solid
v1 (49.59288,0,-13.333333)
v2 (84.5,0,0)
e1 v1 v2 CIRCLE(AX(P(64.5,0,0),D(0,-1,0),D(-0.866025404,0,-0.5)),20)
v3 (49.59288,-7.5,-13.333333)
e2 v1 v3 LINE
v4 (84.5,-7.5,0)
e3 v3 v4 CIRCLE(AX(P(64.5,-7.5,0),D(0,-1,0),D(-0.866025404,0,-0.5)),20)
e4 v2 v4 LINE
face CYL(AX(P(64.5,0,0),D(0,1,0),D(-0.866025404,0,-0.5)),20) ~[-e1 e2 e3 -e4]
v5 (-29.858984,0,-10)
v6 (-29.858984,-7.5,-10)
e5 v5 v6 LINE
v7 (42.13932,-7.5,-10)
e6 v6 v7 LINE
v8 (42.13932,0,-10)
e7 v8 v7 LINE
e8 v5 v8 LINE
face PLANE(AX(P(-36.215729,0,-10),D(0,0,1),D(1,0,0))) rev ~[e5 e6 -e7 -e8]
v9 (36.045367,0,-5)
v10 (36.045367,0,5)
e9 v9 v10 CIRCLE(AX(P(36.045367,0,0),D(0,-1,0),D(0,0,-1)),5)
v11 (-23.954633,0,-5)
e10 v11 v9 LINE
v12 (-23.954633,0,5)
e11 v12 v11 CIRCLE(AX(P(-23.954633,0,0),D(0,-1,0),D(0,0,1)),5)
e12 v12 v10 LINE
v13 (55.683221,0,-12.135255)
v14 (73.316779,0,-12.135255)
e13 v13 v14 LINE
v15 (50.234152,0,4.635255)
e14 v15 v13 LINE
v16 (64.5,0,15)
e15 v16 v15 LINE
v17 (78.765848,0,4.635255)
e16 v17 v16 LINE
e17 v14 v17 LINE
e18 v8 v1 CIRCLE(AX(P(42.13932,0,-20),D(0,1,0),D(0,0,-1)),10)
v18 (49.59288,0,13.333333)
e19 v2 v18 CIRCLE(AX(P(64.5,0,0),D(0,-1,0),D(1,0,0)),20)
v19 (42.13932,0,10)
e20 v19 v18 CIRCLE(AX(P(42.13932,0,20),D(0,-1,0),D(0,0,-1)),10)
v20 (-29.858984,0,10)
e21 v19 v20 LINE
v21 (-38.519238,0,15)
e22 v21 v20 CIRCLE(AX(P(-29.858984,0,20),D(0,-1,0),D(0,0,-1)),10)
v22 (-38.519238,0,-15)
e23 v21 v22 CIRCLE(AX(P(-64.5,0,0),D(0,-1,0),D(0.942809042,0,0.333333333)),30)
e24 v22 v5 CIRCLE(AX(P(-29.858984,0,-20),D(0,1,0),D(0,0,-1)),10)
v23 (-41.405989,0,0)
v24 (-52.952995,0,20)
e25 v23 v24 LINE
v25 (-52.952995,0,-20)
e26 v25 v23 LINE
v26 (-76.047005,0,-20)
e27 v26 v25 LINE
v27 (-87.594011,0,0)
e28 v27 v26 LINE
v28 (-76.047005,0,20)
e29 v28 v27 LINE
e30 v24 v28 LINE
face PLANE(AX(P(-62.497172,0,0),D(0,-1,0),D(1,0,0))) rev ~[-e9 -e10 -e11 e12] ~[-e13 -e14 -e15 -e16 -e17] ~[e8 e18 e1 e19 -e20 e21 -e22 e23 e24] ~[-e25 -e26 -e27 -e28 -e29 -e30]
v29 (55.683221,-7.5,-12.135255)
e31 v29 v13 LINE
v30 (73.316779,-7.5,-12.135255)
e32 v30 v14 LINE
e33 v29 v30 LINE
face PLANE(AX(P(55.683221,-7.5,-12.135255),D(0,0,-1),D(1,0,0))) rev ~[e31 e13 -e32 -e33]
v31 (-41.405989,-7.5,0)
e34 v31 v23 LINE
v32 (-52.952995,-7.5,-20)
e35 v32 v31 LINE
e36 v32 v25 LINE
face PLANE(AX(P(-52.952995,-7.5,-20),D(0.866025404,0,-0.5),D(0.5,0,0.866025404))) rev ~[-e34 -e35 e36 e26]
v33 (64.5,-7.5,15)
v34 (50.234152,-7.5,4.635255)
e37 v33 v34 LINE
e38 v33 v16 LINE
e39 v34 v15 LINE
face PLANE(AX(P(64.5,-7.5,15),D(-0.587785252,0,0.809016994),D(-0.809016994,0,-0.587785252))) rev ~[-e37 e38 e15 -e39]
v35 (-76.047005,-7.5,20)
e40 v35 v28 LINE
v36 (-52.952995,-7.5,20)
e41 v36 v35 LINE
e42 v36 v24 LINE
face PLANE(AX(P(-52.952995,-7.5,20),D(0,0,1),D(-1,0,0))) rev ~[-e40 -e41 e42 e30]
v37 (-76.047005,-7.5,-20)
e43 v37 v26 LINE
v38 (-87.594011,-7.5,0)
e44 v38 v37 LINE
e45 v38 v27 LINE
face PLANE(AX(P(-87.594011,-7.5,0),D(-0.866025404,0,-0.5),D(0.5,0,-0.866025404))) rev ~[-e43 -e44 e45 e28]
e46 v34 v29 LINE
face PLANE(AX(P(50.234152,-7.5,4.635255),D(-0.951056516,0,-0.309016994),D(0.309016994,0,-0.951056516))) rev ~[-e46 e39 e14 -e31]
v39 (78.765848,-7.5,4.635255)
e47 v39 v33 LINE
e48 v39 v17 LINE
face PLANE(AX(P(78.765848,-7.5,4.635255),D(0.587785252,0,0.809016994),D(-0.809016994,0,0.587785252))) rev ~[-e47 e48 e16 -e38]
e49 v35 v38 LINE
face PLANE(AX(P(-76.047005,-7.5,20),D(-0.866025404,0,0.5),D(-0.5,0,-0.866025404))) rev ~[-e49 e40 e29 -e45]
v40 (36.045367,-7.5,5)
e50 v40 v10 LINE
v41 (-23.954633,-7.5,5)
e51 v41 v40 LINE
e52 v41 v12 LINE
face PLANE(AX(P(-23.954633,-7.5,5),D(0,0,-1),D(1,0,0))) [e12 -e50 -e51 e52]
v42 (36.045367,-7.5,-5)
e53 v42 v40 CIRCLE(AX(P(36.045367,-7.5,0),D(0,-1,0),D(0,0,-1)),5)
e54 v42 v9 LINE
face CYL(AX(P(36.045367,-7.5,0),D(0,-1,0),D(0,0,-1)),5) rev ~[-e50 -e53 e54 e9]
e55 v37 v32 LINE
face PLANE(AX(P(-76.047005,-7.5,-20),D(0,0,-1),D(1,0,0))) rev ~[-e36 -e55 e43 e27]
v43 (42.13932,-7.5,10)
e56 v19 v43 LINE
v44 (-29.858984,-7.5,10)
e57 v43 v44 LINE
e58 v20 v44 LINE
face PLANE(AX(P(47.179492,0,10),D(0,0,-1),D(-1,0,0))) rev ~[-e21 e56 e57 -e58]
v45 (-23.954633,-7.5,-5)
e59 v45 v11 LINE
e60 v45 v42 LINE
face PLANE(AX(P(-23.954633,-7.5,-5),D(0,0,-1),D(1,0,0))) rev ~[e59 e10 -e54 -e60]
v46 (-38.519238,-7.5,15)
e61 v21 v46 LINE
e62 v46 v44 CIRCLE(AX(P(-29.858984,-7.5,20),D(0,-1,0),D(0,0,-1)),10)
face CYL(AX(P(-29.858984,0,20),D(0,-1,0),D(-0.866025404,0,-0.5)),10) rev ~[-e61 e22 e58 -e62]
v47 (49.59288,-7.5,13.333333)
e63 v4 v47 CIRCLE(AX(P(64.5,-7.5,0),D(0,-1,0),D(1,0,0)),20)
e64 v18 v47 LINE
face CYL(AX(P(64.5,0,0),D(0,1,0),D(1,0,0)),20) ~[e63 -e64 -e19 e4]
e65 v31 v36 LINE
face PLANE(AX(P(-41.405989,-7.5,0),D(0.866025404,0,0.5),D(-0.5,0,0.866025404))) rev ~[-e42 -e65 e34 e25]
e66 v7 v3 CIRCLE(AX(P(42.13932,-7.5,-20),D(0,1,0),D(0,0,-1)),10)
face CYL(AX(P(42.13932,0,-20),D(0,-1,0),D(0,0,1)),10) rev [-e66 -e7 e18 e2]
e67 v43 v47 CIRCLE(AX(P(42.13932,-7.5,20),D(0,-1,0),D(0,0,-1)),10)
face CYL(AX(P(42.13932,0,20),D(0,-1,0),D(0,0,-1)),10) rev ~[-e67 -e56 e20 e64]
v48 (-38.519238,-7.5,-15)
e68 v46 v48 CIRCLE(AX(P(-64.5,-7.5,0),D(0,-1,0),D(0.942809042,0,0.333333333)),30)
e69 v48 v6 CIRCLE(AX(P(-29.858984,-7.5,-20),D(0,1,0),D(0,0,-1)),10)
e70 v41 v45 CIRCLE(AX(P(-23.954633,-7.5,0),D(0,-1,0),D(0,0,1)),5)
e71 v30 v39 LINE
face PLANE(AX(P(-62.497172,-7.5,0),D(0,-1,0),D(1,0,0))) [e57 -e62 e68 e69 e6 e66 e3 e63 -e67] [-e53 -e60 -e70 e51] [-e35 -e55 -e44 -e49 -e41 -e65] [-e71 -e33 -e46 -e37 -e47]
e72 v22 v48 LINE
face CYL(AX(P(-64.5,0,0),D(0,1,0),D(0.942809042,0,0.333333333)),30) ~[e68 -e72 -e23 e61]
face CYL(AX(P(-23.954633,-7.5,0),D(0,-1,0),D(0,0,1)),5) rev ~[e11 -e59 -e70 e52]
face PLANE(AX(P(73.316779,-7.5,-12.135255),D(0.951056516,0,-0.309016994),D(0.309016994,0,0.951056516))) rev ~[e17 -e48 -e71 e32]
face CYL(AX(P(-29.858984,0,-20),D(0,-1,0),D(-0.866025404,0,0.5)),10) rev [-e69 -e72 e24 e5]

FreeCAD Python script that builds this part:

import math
import FreeCAD as App
import Part
import Sketcher
Q = App.Units.Quantity


def edges_at(feature, points):
    """Names of the edges that pass closest to the given points."""
    edges = feature.Shape.Edges
    near = lambda p: min(range(len(edges)), key=lambda i: edges[i].distToShape(Part.Vertex(*p))[0])
    return sorted({f"Edge{near(p) + 1}" for p in points})

doc = App.newDocument("Part")
params = doc.addObject("Spreadsheet::Sheet", "Params")
for row, (alias, value) in enumerate([
    ("sketch1_radius", "30 mm"),
    ("sketch1_radius2", "20 mm"),
    ("pad1_length", "7.5 mm"),
    ("pocket1_length", "25 mm"),
    ("pocket2_length", "25 mm"),
    ("sketch4_radius", "5 mm"),
    ("sketch4_width", "60 mm"),
    ("pocket3_length", "25 mm"),
    ("fillet_radius", "10 mm"),
], start=1):
    params.set(f"A{row}", alias)
    params.set(f"B{row}", "=" + value)
    params.setAlias(f"B{row}", alias)

body = doc.addObject("PartDesign::Body", "Body")

# Sketch on XZ plane
sketch1 = body.newObject("Sketcher::SketchObject", "Sketch")
sketch1.AttachmentSupport = (doc.getObject("XZ_Plane"), [""])
sketch1.MapMode = "FlatFace"
sketch1.addGeometry([
    Part.ArcOfCircle(Part.Circle(App.Vector(-64.5, 0, 0), App.Vector(0, 0, 1), 30), math.radians(19.471221), math.radians(340.528779)),  # 0
    Part.LineSegment(App.Vector(-36.215729, -10, 0), App.Vector(47.179492, -10, 0)),  # 1
    Part.ArcOfCircle(Part.Circle(App.Vector(64.5, 0, 0), App.Vector(0, 0, 1), 20), math.radians(-150), math.radians(0)),  # 2
    Part.ArcOfCircle(Part.Circle(App.Vector(64.5, 0, 0), App.Vector(0, 0, 1), 20), math.radians(0), math.radians(150)),  # 3
    Part.LineSegment(App.Vector(47.179492, 10, 0), App.Vector(-36.215729, 10, 0)),  # 4
], False)
sketch1.addConstraint([
    Sketcher.Constraint("Coincident", 0, 2, 1, 1),
    Sketcher.Constraint("Coincident", 1, 2, 2, 1),
    Sketcher.Constraint("Tangent", 2, 2, 3, 1),
    Sketcher.Constraint("Coincident", 3, 2, 4, 1),
    Sketcher.Constraint("Coincident", 4, 2, 0, 1),
    Sketcher.Constraint("Horizontal", 1),
    Sketcher.Constraint("Horizontal", 4),
    Sketcher.Constraint("Equal", 2, 3),
    Sketcher.Constraint("Symmetric", 0, 3, 2, 3, -1, 1),
    Sketcher.Constraint("Symmetric", 1, 2, 3, 2, -1),
    Sketcher.Constraint("PointOnObject", 2, 2, -1),
    Sketcher.Constraint("Radius", 0, 30.0),
    Sketcher.Constraint("Radius", 2, 20.0),
    Sketcher.Constraint("DistanceY", 0, 2, -1, 1, 10.0),
    Sketcher.Constraint("DistanceX", 0, 3, 2, 3, 129.0),
])
sketch1.setExpression("Constraints[11]", "Params.sketch1_radius")
sketch1.setExpression("Constraints[12]", "Params.sketch1_radius2")
pad1 = body.newObject("PartDesign::Pad", "Pad")
pad1.Profile = sketch1
pad1.setExpression("Length", "Params.pad1_length")

# Sketch on XZ plane
sketch2 = body.newObject("Sketcher::SketchObject", "Sketch001")
sketch2.AttachmentSupport = (doc.getObject("XZ_Plane"), [""])
sketch2.MapMode = "FlatFace"
sketch2.AttachmentOffset = App.Placement(App.Vector(0, 0, 7.5), App.Rotation())
sketch2.addGeometry([
    Part.LineSegment(App.Vector(-52.952995, 20, 0), App.Vector(-76.047005, 20, 0)),  # 0
    Part.LineSegment(App.Vector(-76.047005, 20, 0), App.Vector(-87.594011, 0, 0)),  # 1
    Part.LineSegment(App.Vector(-87.594011, 0, 0), App.Vector(-76.047005, -20, 0)),  # 2
    Part.LineSegment(App.Vector(-76.047005, -20, 0), App.Vector(-52.952995, -20, 0)),  # 3
    Part.LineSegment(App.Vector(-52.952995, -20, 0), App.Vector(-41.405989, 0, 0)),  # 4
    Part.LineSegment(App.Vector(-41.405989, 0, 0), App.Vector(-52.952995, 20, 0)),  # 5
], False)
sketch2.addConstraint([
    Sketcher.Constraint("Coincident", 0, 2, 1, 1),
    Sketcher.Constraint("Coincident", 1, 2, 2, 1),
    Sketcher.Constraint("Coincident", 2, 2, 3, 1),
    Sketcher.Constraint("Coincident", 3, 2, 4, 1),
    Sketcher.Constraint("Coincident", 4, 2, 5, 1),
    Sketcher.Constraint("Coincident", 5, 2, 0, 1),
    Sketcher.Constraint("Horizontal", 0),
    Sketcher.Constraint("Horizontal", 3),
    Sketcher.Constraint("Symmetric", 0, 2, 2, 2, -1),
    Sketcher.Constraint("PointOnObject", 1, 2, -1),
    Sketcher.Constraint("PointOnObject", 4, 2, -1),
    Sketcher.Constraint("Parallel", 1, 4),
    Sketcher.Constraint("Parallel", 2, 5),
    Sketcher.Constraint("Angle", 1, Q("-120 deg")),
    Sketcher.Constraint("DistanceY", -1, 1, 0, 2, 20.0),
    Sketcher.Constraint("DistanceX", 0, 2, 0, 1, 23.094011),
    Sketcher.Constraint("DistanceX", 1, 2, -1, 1, 87.594011),
])
pocket1 = body.newObject("PartDesign::Pocket", "Pocket")
pocket1.Profile = sketch2
pocket1.setExpression("Length", "Params.pocket1_length")

# Sketch on XZ plane
sketch3 = body.newObject("Sketcher::SketchObject", "Sketch002")
sketch3.AttachmentSupport = (doc.getObject("XZ_Plane"), [""])
sketch3.MapMode = "FlatFace"
sketch3.AttachmentOffset = App.Placement(App.Vector(0, 0, 7.5), App.Rotation())
sketch3.addGeometry([
    Part.LineSegment(App.Vector(73.316779, -12.135255, 0), App.Vector(78.765848, 4.635255, 0)),  # 0
    Part.LineSegment(App.Vector(78.765848, 4.635255, 0), App.Vector(64.5, 15, 0)),  # 1
    Part.LineSegment(App.Vector(64.5, 15, 0), App.Vector(50.234152, 4.635255, 0)),  # 2
    Part.LineSegment(App.Vector(50.234152, 4.635255, 0), App.Vector(55.683221, -12.135255, 0)),  # 3
    Part.LineSegment(App.Vector(55.683221, -12.135255, 0), App.Vector(73.316779, -12.135255, 0)),  # 4
], False)
sketch3.addConstraint([
    Sketcher.Constraint("Coincident", 0, 2, 1, 1),
    Sketcher.Constraint("Coincident", 1, 2, 2, 1),
    Sketcher.Constraint("Coincident", 2, 2, 3, 1),
    Sketcher.Constraint("Coincident", 3, 2, 4, 1),
    Sketcher.Constraint("Coincident", 4, 2, 0, 1),
    Sketcher.Constraint("Horizontal", 4),
    Sketcher.Constraint("Horizontal", 0, 2, 2, 2),
    Sketcher.Constraint("Equal", 0, 1),
    Sketcher.Constraint("Equal", 1, 2),
    Sketcher.Constraint("Equal", 2, 3),
    Sketcher.Constraint("Angle", 0, Q("72 deg")),
    Sketcher.Constraint("Angle", 1, Q("144 deg")),
    Sketcher.Constraint("DistanceY", -1, 1, 1, 2, 15.0),
    Sketcher.Constraint("DistanceX", -1, 1, 1, 2, 64.5),
    Sketcher.Constraint("DistanceX", 4, 1, 4, 2, 17.633558),
])
pocket2 = body.newObject("PartDesign::Pocket", "Pocket001")
pocket2.Profile = sketch3
pocket2.setExpression("Length", "Params.pocket2_length")

# Sketch on XZ plane
sketch4 = body.newObject("Sketcher::SketchObject", "Sketch003")
sketch4.AttachmentSupport = (doc.getObject("XZ_Plane"), [""])
sketch4.MapMode = "FlatFace"
sketch4.AttachmentOffset = App.Placement(App.Vector(0, 0, 7.5), App.Rotation())
sketch4.addGeometry([
    Part.LineSegment(App.Vector(-23.954633, -5, 0), App.Vector(36.045367, -5, 0)),
    Part.ArcOfCircle(Part.Circle(App.Vector(36.045367, 0, 0), App.Vector(0, 0, 1), 5), math.radians(-90), math.radians(90)),
    Part.LineSegment(App.Vector(36.045367, 5, 0), App.Vector(-23.954633, 5, 0)),
    Part.ArcOfCircle(Part.Circle(App.Vector(-23.954633, 0, 0), App.Vector(0, 0, 1), 5), math.radians(90), math.radians(270)),
], False)
sketch4.addConstraint([
    Sketcher.Constraint("Tangent", 0, 2, 1, 1),
    Sketcher.Constraint("Tangent", 1, 2, 2, 1),
    Sketcher.Constraint("Tangent", 2, 2, 3, 1),
    Sketcher.Constraint("Tangent", 3, 2, 0, 1),
    Sketcher.Constraint("Horizontal", 0),
    Sketcher.Constraint("Horizontal", 2),
    Sketcher.Constraint("PointOnObject", 1, 3, -1),
    Sketcher.Constraint("Radius", 1, 5.0),
    Sketcher.Constraint("DistanceX", 0, 1, 0, 2, 60.0),
    Sketcher.Constraint("DistanceX", -1, 1, 1, 3, 36.045367),
])
sketch4.setExpression("Constraints[7]", "Params.sketch4_radius")
sketch4.setExpression("Constraints[8]", "Params.sketch4_width")
pocket3 = body.newObject("PartDesign::Pocket", "Pocket002")
pocket3.Profile = sketch4
pocket3.setExpression("Length", "Params.pocket3_length")
doc.recompute()

fillet = body.newObject("PartDesign::Fillet", "Fillet")
fillet.Base = (pocket3, edges_at(pocket3, [
    (-36.216, -3.75, -10),
    (47.179, -3.75, 10),
    (47.179, -3.75, -10),
    (-36.216, -3.75, 10),
]))
fillet.setExpression("Radius", "Params.fillet_radius")

doc.recompute()
